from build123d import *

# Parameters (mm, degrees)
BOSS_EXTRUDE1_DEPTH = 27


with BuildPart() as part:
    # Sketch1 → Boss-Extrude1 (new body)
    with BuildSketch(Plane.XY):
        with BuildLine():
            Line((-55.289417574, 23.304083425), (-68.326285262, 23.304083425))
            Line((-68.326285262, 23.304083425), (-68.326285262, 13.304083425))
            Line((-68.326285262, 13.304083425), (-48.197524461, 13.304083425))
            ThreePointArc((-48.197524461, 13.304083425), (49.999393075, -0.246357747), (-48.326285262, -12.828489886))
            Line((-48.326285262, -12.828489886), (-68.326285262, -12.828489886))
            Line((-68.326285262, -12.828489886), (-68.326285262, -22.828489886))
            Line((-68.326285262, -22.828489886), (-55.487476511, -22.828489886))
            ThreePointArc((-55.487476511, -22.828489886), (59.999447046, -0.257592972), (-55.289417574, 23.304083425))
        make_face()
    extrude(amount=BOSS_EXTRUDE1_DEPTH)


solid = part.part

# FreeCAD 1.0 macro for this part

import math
import FreeCAD as App
import Part
import Sketcher
Q = App.Units.Quantity

doc = App.newDocument("Part")
body = doc.addObject("PartDesign::Body", "Body")

sketch1 = body.newObject("Sketcher::SketchObject", "Sketch")
sketch1.AttachmentSupport = (doc.getObject("XY_Plane"), [""])
sketch1.MapMode = "FlatFace"
sketch1.addGeometry([
    Part.LineSegment(App.Vector(-55, 23, 0), App.Vector(-68, 23, 0)),
    Part.LineSegment(App.Vector(-68, 23, 0), App.Vector(-68, 13, 0)),
    Part.LineSegment(App.Vector(-68, 13, 0), App.Vector(-48, 13, 0)),
    Part.ArcOfCircle(Part.Circle(App.Vector(0, 0, 0), App.Vector(0, 0, 1), 50), math.radians(-165), math.radians(165)),
    Part.LineSegment(App.Vector(-48, -13, 0), App.Vector(-68, -13, 0)),
    Part.LineSegment(App.Vector(-68, -13, 0), App.Vector(-68, -23, 0)),
    Part.LineSegment(App.Vector(-68, -23, 0), App.Vector(-55, -23, 0)),
    Part.ArcOfCircle(Part.Circle(App.Vector(0, 0, 0), App.Vector(0, 0, 1), 60), math.radians(-158), math.radians(157)),
], False)
sketch1.addConstraint([
    Sketcher.Constraint("Coincident", 0, 2, 1, 1),
    Sketcher.Constraint("Coincident", 1, 2, 2, 1),
    Sketcher.Constraint("Coincident", 2, 2, 3, 2),
    Sketcher.Constraint("Coincident", 3, 1, 4, 1),
    Sketcher.Constraint("Coincident", 4, 2, 5, 1),
    Sketcher.Constraint("Coincident", 5, 2, 6, 1),
    Sketcher.Constraint("Coincident", 6, 2, 7, 1),
    Sketcher.Constraint("Coincident", 7, 2, 0, 1),
    Sketcher.Constraint("Horizontal", 0),
    Sketcher.Constraint("Vertical", 1),
    Sketcher.Constraint("Horizontal", 2),
    Sketcher.Constraint("Horizontal", 4),
    Sketcher.Constraint("Vertical", 5),
    Sketcher.Constraint("Horizontal", 6),
    Sketcher.Constraint("Coincident", 3, 3, -1, 1),
    Sketcher.Constraint("Coincident", 7, 3, -1, 1),
    Sketcher.Constraint("Vertical", 1, 2, 4, 2),
    Sketcher.Constraint("Equal", 1, 5),
    Sketcher.Constraint("Radius", 3, Q("50 mm")),
    Sketcher.Constraint("Radius", 7, Q("60 mm")),
    Sketcher.Constraint("DistanceX", 4, 2, 4, 1, Q("20 mm")),
    Sketcher.Constraint("DistanceY", 1, 2, 1, 1, Q("10 mm")),
    Sketcher.Constraint("DistanceX", 2, 1, 2, 2, Q("20.128761 mm")),
    Sketcher.Constraint("DistanceX", 6, 1, 6, 2, Q("12.838809 mm")),
])
pad1 = body.newObject("PartDesign::Pad", "Pad")
pad1.Profile = sketch1
pad1.Length = 27

doc.recompute()
